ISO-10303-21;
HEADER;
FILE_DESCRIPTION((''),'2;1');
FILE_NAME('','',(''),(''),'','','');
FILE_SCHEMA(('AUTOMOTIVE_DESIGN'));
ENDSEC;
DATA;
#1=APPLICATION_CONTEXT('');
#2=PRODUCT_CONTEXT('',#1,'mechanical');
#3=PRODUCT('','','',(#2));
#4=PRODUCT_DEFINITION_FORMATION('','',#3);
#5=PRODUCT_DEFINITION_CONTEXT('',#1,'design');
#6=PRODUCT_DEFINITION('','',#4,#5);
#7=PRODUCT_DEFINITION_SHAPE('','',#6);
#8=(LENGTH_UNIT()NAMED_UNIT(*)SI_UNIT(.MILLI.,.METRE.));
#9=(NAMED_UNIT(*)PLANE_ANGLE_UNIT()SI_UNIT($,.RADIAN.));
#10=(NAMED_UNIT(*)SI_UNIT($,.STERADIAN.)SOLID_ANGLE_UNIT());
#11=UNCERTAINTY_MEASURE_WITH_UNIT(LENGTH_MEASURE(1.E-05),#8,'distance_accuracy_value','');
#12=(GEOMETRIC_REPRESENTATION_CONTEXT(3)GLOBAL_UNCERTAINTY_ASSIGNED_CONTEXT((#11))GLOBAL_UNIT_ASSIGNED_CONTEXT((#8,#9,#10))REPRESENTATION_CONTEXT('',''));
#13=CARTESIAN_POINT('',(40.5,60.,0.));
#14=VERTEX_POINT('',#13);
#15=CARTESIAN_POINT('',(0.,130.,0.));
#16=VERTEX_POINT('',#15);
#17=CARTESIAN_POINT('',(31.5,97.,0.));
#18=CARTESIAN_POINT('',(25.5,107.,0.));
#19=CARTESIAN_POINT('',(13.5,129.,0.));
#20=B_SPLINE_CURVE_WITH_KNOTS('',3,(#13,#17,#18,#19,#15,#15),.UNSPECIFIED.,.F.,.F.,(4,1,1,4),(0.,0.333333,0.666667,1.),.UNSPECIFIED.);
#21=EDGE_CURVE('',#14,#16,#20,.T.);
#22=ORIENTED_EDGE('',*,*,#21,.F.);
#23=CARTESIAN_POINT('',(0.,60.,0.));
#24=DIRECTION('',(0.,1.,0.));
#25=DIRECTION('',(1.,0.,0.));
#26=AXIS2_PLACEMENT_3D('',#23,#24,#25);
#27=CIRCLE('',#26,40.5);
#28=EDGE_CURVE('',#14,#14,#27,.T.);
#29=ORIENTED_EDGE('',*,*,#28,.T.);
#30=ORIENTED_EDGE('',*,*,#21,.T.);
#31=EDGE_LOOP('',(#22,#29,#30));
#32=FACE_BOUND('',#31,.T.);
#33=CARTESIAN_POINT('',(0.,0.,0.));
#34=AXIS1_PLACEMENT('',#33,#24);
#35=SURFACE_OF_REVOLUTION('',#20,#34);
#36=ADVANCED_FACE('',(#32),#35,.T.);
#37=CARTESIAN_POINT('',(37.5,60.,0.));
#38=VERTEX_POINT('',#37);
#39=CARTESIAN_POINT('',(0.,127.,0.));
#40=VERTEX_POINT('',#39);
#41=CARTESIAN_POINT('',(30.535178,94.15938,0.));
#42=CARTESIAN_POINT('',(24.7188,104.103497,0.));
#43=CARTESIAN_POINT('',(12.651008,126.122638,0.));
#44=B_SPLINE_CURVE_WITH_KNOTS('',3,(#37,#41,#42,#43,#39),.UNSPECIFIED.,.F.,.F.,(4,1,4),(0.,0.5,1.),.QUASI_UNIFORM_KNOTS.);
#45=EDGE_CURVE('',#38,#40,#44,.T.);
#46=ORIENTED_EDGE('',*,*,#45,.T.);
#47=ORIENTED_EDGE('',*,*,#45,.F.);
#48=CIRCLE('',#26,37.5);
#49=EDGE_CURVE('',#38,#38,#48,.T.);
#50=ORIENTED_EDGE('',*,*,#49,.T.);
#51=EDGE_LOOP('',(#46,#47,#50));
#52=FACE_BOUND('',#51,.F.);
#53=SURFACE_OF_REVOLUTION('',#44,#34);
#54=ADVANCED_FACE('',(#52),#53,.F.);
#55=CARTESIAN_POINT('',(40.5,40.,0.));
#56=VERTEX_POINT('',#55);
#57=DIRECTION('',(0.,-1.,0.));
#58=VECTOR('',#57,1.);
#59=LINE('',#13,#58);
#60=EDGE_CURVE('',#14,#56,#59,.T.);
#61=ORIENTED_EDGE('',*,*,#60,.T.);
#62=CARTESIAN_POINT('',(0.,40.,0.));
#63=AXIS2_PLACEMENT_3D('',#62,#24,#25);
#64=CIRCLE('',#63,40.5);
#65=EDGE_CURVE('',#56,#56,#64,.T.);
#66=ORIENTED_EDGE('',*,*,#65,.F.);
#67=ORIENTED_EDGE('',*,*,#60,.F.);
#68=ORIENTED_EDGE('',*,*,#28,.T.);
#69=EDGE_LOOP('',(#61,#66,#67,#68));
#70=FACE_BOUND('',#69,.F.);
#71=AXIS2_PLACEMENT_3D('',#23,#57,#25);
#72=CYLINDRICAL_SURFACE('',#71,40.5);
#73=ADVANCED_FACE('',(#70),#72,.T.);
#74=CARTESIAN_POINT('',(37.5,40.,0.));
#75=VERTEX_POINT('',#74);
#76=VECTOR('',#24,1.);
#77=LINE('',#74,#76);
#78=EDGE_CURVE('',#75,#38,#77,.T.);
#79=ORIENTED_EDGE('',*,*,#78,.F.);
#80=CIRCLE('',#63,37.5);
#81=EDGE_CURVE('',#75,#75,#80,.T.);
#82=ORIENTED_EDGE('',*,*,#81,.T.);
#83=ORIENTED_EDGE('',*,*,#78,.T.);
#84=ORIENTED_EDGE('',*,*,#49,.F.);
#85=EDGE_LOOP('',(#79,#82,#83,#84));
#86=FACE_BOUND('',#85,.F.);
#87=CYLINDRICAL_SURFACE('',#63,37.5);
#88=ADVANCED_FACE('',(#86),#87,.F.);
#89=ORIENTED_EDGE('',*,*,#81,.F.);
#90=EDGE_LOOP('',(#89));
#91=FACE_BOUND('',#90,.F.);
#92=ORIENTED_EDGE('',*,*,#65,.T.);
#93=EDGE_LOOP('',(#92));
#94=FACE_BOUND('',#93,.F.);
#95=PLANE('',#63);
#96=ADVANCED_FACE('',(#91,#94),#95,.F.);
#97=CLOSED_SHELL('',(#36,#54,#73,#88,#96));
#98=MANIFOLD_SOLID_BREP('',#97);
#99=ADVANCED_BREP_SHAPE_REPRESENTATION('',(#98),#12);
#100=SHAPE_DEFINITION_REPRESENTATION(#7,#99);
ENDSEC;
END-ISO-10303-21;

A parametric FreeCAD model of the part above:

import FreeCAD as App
import Part
import Sketcher
from FreeCAD import Vector

doc = App.newDocument("Part")
body = doc.addObject("PartDesign::Body", "Body")

sketch1 = body.newObject("Sketcher::SketchObject", "Sketch")
sketch1.AttachmentSupport = (doc.getObject("XY_Plane"), [""])
sketch1.MapMode = "FlatFace"
sketch1.addGeometry([
    Part.LineSegment(Vector(37.5, 60, 0), Vector(37.5, 40, 0)),
    Part.LineSegment(Vector(37.5, 40, 0), Vector(40.5, 40, 0)),
    Part.LineSegment(Vector(40.5, 40, 0), Vector(40.5, 60, 0)),
    Part.BSplineCurve([Vector(40.5, 60, 0), Vector(31.5, 97, 0), Vector(25.5, 107, 0), Vector(13.5, 129, 0), Vector(0, 130, 0), Vector(0, 130, 0)], [4, 1, 1, 4], [0, 0.333333, 0.666667, 1], False, 3, [1, 1, 1, 1, 1, 1], False),
    Part.LineSegment(Vector(0, 130, 0), Vector(0, 127, 0)),
    Part.BSplineCurve([Vector(37.5, 60, 0), Vector(30.535178, 94.15938, 0), Vector(24.7188, 104.103497, 0), Vector(12.651008, 126.122638, 0), Vector(0, 127, 0)], [4, 1, 4], [0, 0.5, 1], False, 3, [1, 1, 1, 1, 1], False),
], False)
sketch1.addConstraint([
    Sketcher.Constraint("Block", 3),
    Sketcher.Constraint("Block", 5),
    Sketcher.Constraint("Coincident", 0, 2, 1, 1),
    Sketcher.Constraint("Coincident", 1, 2, 2, 1),
    Sketcher.Constraint("Coincident", 2, 2, 3, 1),
    Sketcher.Constraint("Coincident", 3, 2, 4, 1),
    Sketcher.Constraint("Coincident", 4, 2, 5, 2),
    Sketcher.Constraint("Coincident", 5, 1, 0, 1),
    Sketcher.Constraint("Vertical", 0),
    Sketcher.Constraint("Horizontal", 1),
    Sketcher.Constraint("Vertical", 2),
    Sketcher.Constraint("DistanceY", 0, 2, 0, 1, 20.0),
])
revolution = body.newObject("PartDesign::Revolution", "Revolution")
revolution.Profile = sketch1
revolution.ReferenceAxis = (sketch1, ["V_Axis"])
revolution.Angle = 360

doc.recompute()
